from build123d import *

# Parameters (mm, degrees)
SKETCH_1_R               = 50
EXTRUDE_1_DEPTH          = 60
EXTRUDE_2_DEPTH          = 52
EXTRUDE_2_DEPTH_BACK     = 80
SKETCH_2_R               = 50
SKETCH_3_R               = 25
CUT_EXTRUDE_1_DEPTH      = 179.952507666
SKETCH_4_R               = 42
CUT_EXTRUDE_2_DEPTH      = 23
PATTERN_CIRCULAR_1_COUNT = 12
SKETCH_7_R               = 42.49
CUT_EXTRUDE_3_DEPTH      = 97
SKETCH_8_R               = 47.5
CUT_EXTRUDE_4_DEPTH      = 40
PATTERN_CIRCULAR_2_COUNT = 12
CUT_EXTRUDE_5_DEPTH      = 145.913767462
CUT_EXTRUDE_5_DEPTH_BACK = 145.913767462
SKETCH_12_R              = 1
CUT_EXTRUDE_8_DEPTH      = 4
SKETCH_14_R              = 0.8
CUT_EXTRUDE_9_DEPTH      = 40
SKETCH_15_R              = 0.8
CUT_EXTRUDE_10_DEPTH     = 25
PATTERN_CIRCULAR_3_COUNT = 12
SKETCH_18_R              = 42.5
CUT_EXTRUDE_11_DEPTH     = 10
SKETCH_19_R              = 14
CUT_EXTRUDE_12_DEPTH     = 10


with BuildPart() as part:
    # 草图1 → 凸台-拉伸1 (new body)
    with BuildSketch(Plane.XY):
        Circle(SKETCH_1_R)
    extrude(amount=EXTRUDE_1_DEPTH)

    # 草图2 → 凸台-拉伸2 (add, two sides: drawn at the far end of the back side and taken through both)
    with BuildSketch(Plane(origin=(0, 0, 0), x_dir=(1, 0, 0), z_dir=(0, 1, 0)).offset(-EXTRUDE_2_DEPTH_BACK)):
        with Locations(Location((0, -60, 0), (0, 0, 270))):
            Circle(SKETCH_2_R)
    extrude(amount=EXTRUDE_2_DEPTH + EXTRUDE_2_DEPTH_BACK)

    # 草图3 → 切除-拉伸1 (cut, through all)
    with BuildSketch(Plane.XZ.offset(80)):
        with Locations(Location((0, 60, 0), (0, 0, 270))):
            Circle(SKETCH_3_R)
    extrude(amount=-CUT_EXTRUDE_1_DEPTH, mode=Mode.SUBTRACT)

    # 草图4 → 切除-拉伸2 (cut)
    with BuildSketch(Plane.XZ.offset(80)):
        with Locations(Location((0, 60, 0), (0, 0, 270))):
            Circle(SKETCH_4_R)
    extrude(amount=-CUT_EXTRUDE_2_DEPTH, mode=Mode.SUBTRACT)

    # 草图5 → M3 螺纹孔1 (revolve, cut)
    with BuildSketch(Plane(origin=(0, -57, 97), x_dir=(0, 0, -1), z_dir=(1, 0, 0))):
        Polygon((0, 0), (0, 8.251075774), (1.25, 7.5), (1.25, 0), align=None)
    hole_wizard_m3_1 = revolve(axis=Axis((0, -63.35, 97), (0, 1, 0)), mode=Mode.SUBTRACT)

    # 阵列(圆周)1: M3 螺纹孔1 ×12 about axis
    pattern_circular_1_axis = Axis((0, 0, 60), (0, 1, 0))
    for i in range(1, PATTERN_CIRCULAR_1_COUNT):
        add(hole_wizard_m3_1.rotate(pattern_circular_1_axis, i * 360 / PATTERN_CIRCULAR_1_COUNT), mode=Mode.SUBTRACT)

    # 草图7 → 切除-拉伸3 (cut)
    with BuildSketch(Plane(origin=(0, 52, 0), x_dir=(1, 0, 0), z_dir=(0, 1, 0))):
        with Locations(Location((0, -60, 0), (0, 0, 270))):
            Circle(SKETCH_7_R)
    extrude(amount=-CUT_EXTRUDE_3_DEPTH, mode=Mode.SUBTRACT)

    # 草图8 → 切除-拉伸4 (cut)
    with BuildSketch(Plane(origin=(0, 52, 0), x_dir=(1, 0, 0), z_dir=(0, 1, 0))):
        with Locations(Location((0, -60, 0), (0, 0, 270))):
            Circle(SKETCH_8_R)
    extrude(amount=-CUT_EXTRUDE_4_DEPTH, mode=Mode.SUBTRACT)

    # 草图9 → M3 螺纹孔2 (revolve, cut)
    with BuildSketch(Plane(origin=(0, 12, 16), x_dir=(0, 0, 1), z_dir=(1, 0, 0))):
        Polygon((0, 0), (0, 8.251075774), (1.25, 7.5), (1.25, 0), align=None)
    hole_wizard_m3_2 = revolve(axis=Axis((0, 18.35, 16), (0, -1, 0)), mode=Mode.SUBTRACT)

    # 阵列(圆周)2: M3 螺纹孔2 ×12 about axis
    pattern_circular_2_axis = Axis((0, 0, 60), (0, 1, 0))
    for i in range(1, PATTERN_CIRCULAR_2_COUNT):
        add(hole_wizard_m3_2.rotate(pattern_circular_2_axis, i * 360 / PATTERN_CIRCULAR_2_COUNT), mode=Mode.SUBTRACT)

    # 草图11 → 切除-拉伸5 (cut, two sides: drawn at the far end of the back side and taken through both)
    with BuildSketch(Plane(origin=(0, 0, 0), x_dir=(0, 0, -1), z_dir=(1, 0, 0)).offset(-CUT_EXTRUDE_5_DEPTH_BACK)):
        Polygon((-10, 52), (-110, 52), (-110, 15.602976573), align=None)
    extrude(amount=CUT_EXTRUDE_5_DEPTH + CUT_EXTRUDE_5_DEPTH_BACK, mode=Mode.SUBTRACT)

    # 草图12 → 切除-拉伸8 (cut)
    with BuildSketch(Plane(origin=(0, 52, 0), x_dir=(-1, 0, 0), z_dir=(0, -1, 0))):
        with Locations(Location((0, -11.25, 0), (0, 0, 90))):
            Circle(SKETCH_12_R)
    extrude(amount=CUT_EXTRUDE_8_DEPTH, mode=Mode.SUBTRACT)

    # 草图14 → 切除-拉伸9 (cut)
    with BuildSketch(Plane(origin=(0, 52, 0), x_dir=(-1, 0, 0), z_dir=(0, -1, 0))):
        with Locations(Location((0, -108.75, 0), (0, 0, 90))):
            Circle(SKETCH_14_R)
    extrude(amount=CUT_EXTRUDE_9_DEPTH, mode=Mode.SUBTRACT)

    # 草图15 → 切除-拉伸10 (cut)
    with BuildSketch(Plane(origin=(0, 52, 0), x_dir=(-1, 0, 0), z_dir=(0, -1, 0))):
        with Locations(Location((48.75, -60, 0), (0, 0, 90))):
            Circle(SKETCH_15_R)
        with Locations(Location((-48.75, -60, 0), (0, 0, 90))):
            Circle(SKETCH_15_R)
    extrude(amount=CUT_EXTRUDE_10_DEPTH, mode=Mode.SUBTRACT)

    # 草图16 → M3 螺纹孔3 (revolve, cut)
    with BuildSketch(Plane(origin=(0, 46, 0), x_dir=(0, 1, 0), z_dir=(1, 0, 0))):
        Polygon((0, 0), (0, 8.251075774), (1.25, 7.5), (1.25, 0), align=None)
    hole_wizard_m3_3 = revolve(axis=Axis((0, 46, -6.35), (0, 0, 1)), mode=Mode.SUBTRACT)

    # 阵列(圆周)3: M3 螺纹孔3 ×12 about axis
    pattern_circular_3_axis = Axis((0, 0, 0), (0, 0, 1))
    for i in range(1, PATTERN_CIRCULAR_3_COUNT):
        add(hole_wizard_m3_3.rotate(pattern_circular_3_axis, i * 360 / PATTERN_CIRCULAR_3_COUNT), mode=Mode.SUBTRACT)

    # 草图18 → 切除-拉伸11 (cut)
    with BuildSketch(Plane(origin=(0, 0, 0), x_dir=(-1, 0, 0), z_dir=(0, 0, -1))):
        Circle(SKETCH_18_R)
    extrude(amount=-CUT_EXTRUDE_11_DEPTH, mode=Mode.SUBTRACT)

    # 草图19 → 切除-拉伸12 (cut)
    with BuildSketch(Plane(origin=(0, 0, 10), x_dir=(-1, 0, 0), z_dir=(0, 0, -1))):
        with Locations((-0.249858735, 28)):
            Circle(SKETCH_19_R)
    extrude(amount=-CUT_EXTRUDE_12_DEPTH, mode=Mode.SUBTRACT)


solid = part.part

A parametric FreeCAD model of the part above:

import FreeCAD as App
import Part
import Sketcher
Q = App.Units.Quantity


def add_polygon(sketch, points):
    """Adds a closed chain of lines whose ends are joined by coincident constraints."""
    first, n = sketch.GeometryCount, len(points)
    for a, b in zip(points, points[1:] + points[:1]):
        sketch.addGeometry(Part.LineSegment(App.Vector(*a, 0), App.Vector(*b, 0)), False)
    for i in range(n):
        sketch.addConstraint(Sketcher.Constraint("Coincident", first + i, 2, first + (i + 1) % n, 1))

doc = App.newDocument("Part")
body = doc.addObject("PartDesign::Body", "Body")

sketch1 = doc.addObject("Sketcher::SketchObject", "Sketch")
body.addObject(sketch1)
sketch1.AttachmentSupport = (doc.XY_Plane, [""])
sketch1.MapMode = "FlatFace"
sketch1.addGeometry(Part.Circle(App.Vector(0, 0, 0), App.Vector(0, 0, 1), 50), False)
sketch1.addConstraint(Sketcher.Constraint("Coincident", 0, 3, -1, 1))
sketch1.addConstraint(Sketcher.Constraint("Diameter", 0, Q("100 mm")))
pad1 = doc.addObject("PartDesign::Pad", "Pad")
body.addObject(pad1)
pad1.Profile = sketch1
pad1.Length = 60

sketch2 = doc.addObject("Sketcher::SketchObject", "Sketch001")
body.addObject(sketch2)
sketch2.AttachmentSupport = (doc.XZ_Plane, [""])
sketch2.MapMode = "FlatFace"
sketch2.addGeometry(Part.Circle(App.Vector(0, 60, 0), App.Vector(0, 0, 1), 50), False)
sketch2.addConstraint(Sketcher.Constraint("PointOnObject", 0, 3, -2))
sketch2.addConstraint(Sketcher.Constraint("Diameter", 0, Q("100 mm")))
sketch2.addConstraint(Sketcher.Constraint("DistanceY", -1, 1, 0, 3, Q("60 mm")))
pad2 = doc.addObject("PartDesign::Pad", "Pad001")
body.addObject(pad2)
pad2.Profile = sketch2
pad2.Type = "TwoLengths"
pad2.Length = 52
pad2.Length2 = 80
pad2.Reversed = True

sketch3 = doc.addObject("Sketcher::SketchObject", "Sketch002")
body.addObject(sketch3)
sketch3.AttachmentSupport = (doc.XZ_Plane, [""])
sketch3.MapMode = "FlatFace"
sketch3.AttachmentOffset = App.Placement(App.Vector(0, 0, 80), App.Rotation())
sketch3.addGeometry(Part.Circle(App.Vector(0, 60, 0), App.Vector(0, 0, 1), 25), False)
sketch3.addConstraint(Sketcher.Constraint("PointOnObject", 0, 3, -2))
sketch3.addConstraint(Sketcher.Constraint("Diameter", 0, Q("50 mm")))
sketch3.addConstraint(Sketcher.Constraint("DistanceY", -1, 1, 0, 3, Q("60 mm")))
pocket1 = doc.addObject("PartDesign::Pocket", "Pocket")
body.addObject(pocket1)
pocket1.Profile = sketch3
pocket1.Type = "ThroughAll"

sketch4 = doc.addObject("Sketcher::SketchObject", "Sketch003")
body.addObject(sketch4)
sketch4.AttachmentSupport = (doc.XZ_Plane, [""])
sketch4.MapMode = "FlatFace"
sketch4.AttachmentOffset = App.Placement(App.Vector(0, 0, 80), App.Rotation())
sketch4.addGeometry(Part.Circle(App.Vector(0, 60, 0), App.Vector(0, 0, 1), 42), False)
sketch4.addConstraint(Sketcher.Constraint("PointOnObject", 0, 3, -2))
sketch4.addConstraint(Sketcher.Constraint("Diameter", 0, Q("84 mm")))
sketch4.addConstraint(Sketcher.Constraint("DistanceY", -1, 1, 0, 3, Q("60 mm")))
pocket2 = doc.addObject("PartDesign::Pocket", "Pocket001")
body.addObject(pocket2)
pocket2.Profile = sketch4
pocket2.Length = 23

sketch5 = doc.addObject("Sketcher::SketchObject", "Sketch004")
body.addObject(sketch5)
sketch5.AttachmentSupport = (doc.YZ_Plane, [""])
sketch5.MapMode = "FlatFace"
add_polygon(sketch5, [(-48.7, 97), (-57, 97), (-57, 95.8), (-49.5, 95.8)])
sketch5.addGeometry(Part.LineSegment(App.Vector(-57, 97, 0), App.Vector(-48.7, 97, 0)), True)
sketch5.addConstraint(Sketcher.Constraint("Horizontal", 0))
sketch5.addConstraint(Sketcher.Constraint("Vertical", 1))
sketch5.addConstraint(Sketcher.Constraint("Horizontal", 2))
sketch5.addConstraint(Sketcher.Constraint("Horizontal", 4))
sketch5.addConstraint(Sketcher.Constraint("Coincident", 4, 1, 0, 2))
sketch5.addConstraint(Sketcher.Constraint("Equal", 0, 4))
sketch5.addConstraint(Sketcher.Constraint("Angle", 3, Q("59 deg")))
sketch5.addConstraint(Sketcher.Constraint("DistanceX", 2, 1, 2, 2, Q("7.5 mm")))
sketch5.addConstraint(Sketcher.Constraint("DistanceX", 0, 2, -1, 1, Q("57 mm")))
sketch5.addConstraint(Sketcher.Constraint("DistanceY", -1, 1, 0, 2, Q("97 mm")))
sketch5.addConstraint(Sketcher.Constraint("DistanceY", 1, 2, 1, 1, Q("1.25 mm")))
groove = doc.addObject("PartDesign::Groove", "Groove")
body.addObject(groove)
groove.Profile = sketch5
groove.ReferenceAxis = (sketch5, ["Axis0"])
groove.Angle = 360
doc.recompute()

datumline = doc.addObject("PartDesign::Line", "DatumLine")
body.addObject(datumline)
datumline.Placement = App.Placement(App.Vector(0, 0, 60), App.Rotation(App.Vector(0, 0, 1), App.Vector(0, 1, 0)))
polarpattern = doc.addObject("PartDesign::PolarPattern", "PolarPattern")
body.addObject(polarpattern)
polarpattern.Originals = [groove]
polarpattern.Axis = (datumline, [""])
polarpattern.Angle = 360
polarpattern.Occurrences = 12
body.Tip = polarpattern

sketch6 = doc.addObject("Sketcher::SketchObject", "Sketch005")
body.addObject(sketch6)
sketch6.AttachmentSupport = (doc.XZ_Plane, [""])
sketch6.MapMode = "FlatFace"
sketch6.AttachmentOffset = App.Placement(App.Vector(0, 0, -52), App.Rotation())
sketch6.addGeometry(Part.Circle(App.Vector(0, 60, 0), App.Vector(0, 0, 1), 42), False)
sketch6.addConstraint(Sketcher.Constraint("PointOnObject", 0, 3, -2))
sketch6.addConstraint(Sketcher.Constraint("Diameter", 0, Q("84.98 mm")))
sketch6.addConstraint(Sketcher.Constraint("DistanceY", -1, 1, 0, 3, Q("60 mm")))
pocket3 = doc.addObject("PartDesign::Pocket", "Pocket002")
body.addObject(pocket3)
pocket3.Profile = sketch6
pocket3.Length = 97
pocket3.Reversed = True

sketch7 = doc.addObject("Sketcher::SketchObject", "Sketch006")
body.addObject(sketch7)
sketch7.AttachmentSupport = (doc.XZ_Plane, [""])
sketch7.MapMode = "FlatFace"
sketch7.AttachmentOffset = App.Placement(App.Vector(0, 0, -52), App.Rotation())
sketch7.addGeometry(Part.Circle(App.Vector(0, 60, 0), App.Vector(0, 0, 1), 48), False)
sketch7.addConstraint(Sketcher.Constraint("PointOnObject", 0, 3, -2))
sketch7.addConstraint(Sketcher.Constraint("Diameter", 0, Q("95 mm")))
sketch7.addConstraint(Sketcher.Constraint("DistanceY", -1, 1, 0, 3, Q("60 mm")))
pocket4 = doc.addObject("PartDesign::Pocket", "Pocket003")
body.addObject(pocket4)
pocket4.Profile = sketch7
pocket4.Length = 40
pocket4.Reversed = True

sketch8 = doc.addObject("Sketcher::SketchObject", "Sketch007")
body.addObject(sketch8)
sketch8.AttachmentSupport = (doc.YZ_Plane, [""])
sketch8.MapMode = "FlatFace"
add_polygon(sketch8, [(3.7, 16), (12, 16), (12, 17.2), (4.5, 17.2)])
sketch8.addGeometry(Part.LineSegment(App.Vector(12, 16, 0), App.Vector(3.7, 16, 0)), True)
sketch8.addConstraint(Sketcher.Constraint("Horizontal", 0))
sketch8.addConstraint(Sketcher.Constraint("Vertical", 1))
sketch8.addConstraint(Sketcher.Constraint("Horizontal", 2))
sketch8.addConstraint(Sketcher.Constraint("Horizontal", 4))
sketch8.addConstraint(Sketcher.Constraint("Coincident", 4, 1, 0, 2))
sketch8.addConstraint(Sketcher.Constraint("Equal", 0, 4))
sketch8.addConstraint(Sketcher.Constraint("Angle", 3, Q("-121 deg")))
sketch8.addConstraint(Sketcher.Constraint("DistanceX", 2, 2, 2, 1, Q("7.5 mm")))
sketch8.addConstraint(Sketcher.Constraint("DistanceX", -1, 1, 0, 2, Q("12 mm")))
sketch8.addConstraint(Sketcher.Constraint("DistanceY", -1, 1, 0, 2, Q("16 mm")))
sketch8.addConstraint(Sketcher.Constraint("DistanceY", 1, 1, 1, 2, Q("1.25 mm")))
groove2 = doc.addObject("PartDesign::Groove", "Groove001")
body.addObject(groove2)
groove2.Profile = sketch8
groove2.ReferenceAxis = (sketch8, ["Axis0"])
groove2.Angle = 360
doc.recompute()

datumline2 = doc.addObject("PartDesign::Line", "DatumLine001")
body.addObject(datumline2)
datumline2.Placement = App.Placement(App.Vector(0, 0, 60), App.Rotation(App.Vector(0, 0, 1), App.Vector(0, 1, 0)))
polarpattern2 = doc.addObject("PartDesign::PolarPattern", "PolarPattern001")
body.addObject(polarpattern2)
polarpattern2.Originals = [groove2]
polarpattern2.Axis = (datumline2, [""])
polarpattern2.Angle = 360
polarpattern2.Occurrences = 12
body.Tip = polarpattern2

sketch9 = doc.addObject("Sketcher::SketchObject", "Sketch008")
body.addObject(sketch9)
sketch9.AttachmentSupport = (doc.YZ_Plane, [""])
sketch9.MapMode = "FlatFace"
add_polygon(sketch9, [(52, 10), (52, 110), (15.602977, 110)])
sketch9.addConstraint(Sketcher.Constraint("Vertical", 0))
sketch9.addConstraint(Sketcher.Constraint("Horizontal", 1))
sketch9.addConstraint(Sketcher.Constraint("DistanceY", 0, 1, 0, 2, Q("100 mm")))
sketch9.addConstraint(Sketcher.Constraint("Angle", 2, Q("-70 deg")))
sketch9.addConstraint(Sketcher.Constraint("DistanceX", -1, 1, 0, 2, Q("52 mm")))
sketch9.addConstraint(Sketcher.Constraint("DistanceY", -1, 1, 0, 2, Q("110 mm")))
pocket5 = doc.addObject("PartDesign::Pocket", "Pocket004")
body.addObject(pocket5)
pocket5.Profile = sketch9
pocket5.Type = "ThroughAll"
pocket5.Midplane = True

sketch10 = doc.addObject("Sketcher::SketchObject", "Sketch009")
body.addObject(sketch10)
sketch10.AttachmentSupport = (doc.XZ_Plane, [""])
sketch10.MapMode = "FlatFace"
sketch10.AttachmentOffset = App.Placement(App.Vector(0, 0, -52), App.Rotation())
sketch10.addGeometry(Part.Circle(App.Vector(0, 11.2, 0), App.Vector(0, 0, 1), 1), False)
sketch10.addConstraint(Sketcher.Constraint("PointOnObject", 0, 3, -2))
sketch10.addConstraint(Sketcher.Constraint("Diameter", 0, Q("2 mm")))
sketch10.addConstraint(Sketcher.Constraint("DistanceY", -1, 1, 0, 3, Q("11.25 mm")))
pocket6 = doc.addObject("PartDesign::Pocket", "Pocket005")
body.addObject(pocket6)
pocket6.Profile = sketch10
pocket6.Length = 4
pocket6.Reversed = True

sketch11 = doc.addObject("Sketcher::SketchObject", "Sketch010")
body.addObject(sketch11)
sketch11.AttachmentSupport = (doc.XZ_Plane, [""])
sketch11.MapMode = "FlatFace"
sketch11.AttachmentOffset = App.Placement(App.Vector(0, 0, -52), App.Rotation())
sketch11.addGeometry(Part.Circle(App.Vector(0, 108.8, 0), App.Vector(0, 0, 1), 0.8), False)
sketch11.addConstraint(Sketcher.Constraint("PointOnObject", 0, 3, -2))
sketch11.addConstraint(Sketcher.Constraint("Diameter", 0, Q("1.6 mm")))
sketch11.addConstraint(Sketcher.Constraint("DistanceY", -1, 1, 0, 3, Q("108.75 mm")))
pocket7 = doc.addObject("PartDesign::Pocket", "Pocket006")
body.addObject(pocket7)
pocket7.Profile = sketch11
pocket7.Length = 40
pocket7.Reversed = True

sketch12 = doc.addObject("Sketcher::SketchObject", "Sketch011")
body.addObject(sketch12)
sketch12.AttachmentSupport = (doc.XZ_Plane, [""])
sketch12.MapMode = "FlatFace"
sketch12.AttachmentOffset = App.Placement(App.Vector(0, 0, -52), App.Rotation())
sketch12.addGeometry(Part.Circle(App.Vector(-48.8, 60, 0), App.Vector(0, 0, 1), 0.8), False)
sketch12.addGeometry(Part.Circle(App.Vector(48.8, 60, 0), App.Vector(0, 0, 1), 0.8), False)
sketch12.addConstraint(Sketcher.Constraint("Equal", 0, 1))
sketch12.addConstraint(Sketcher.Constraint("Symmetric", 0, 3, 1, 3, -2))
sketch12.addConstraint(Sketcher.Constraint("Diameter", 0, Q("1.6 mm")))
sketch12.addConstraint(Sketcher.Constraint("DistanceY", -1, 1, 0, 3, Q("60 mm")))
sketch12.addConstraint(Sketcher.Constraint("DistanceX", 0, 3, 1, 3, Q("97.5 mm")))
pocket8 = doc.addObject("PartDesign::Pocket", "Pocket007")
body.addObject(pocket8)
pocket8.Profile = sketch12
pocket8.Length = 25
pocket8.Reversed = True

sketch13 = doc.addObject("Sketcher::SketchObject", "Sketch012")
body.addObject(sketch13)
sketch13.AttachmentSupport = (doc.YZ_Plane, [""])
sketch13.MapMode = "FlatFace"
add_polygon(sketch13, [(46, 8.3), (46, 0), (47.2, 0), (47.2, 7.5)])
sketch13.addGeometry(Part.LineSegment(App.Vector(46, 0, 0), App.Vector(46, 8.3, 0)), True)
sketch13.addConstraint(Sketcher.Constraint("Vertical", 0))
sketch13.addConstraint(Sketcher.Constraint("Horizontal", 1))
sketch13.addConstraint(Sketcher.Constraint("Vertical", 2))
sketch13.addConstraint(Sketcher.Constraint("Vertical", 4))
sketch13.addConstraint(Sketcher.Constraint("Coincident", 4, 1, 0, 2))
sketch13.addConstraint(Sketcher.Constraint("PointOnObject", 0, 2, -1))
sketch13.addConstraint(Sketcher.Constraint("Equal", 0, 4))
sketch13.addConstraint(Sketcher.Constraint("Angle", 3, Q("149 deg")))
sketch13.addConstraint(Sketcher.Constraint("DistanceY", 2, 1, 2, 2, Q("7.5 mm")))
sketch13.addConstraint(Sketcher.Constraint("DistanceX", -1, 1, 0, 2, Q("46 mm")))
sketch13.addConstraint(Sketcher.Constraint("DistanceX", 1, 1, 1, 2, Q("1.25 mm")))
groove3 = doc.addObject("PartDesign::Groove", "Groove002")
body.addObject(groove3)
groove3.Profile = sketch13
groove3.ReferenceAxis = (sketch13, ["Axis0"])
groove3.Angle = 360
doc.recompute()

polarpattern3 = doc.addObject("PartDesign::PolarPattern", "PolarPattern002")
body.addObject(polarpattern3)
polarpattern3.Originals = [groove3]
polarpattern3.Axis = (doc.Z_Axis, [""])
polarpattern3.Angle = 360
polarpattern3.Occurrences = 12
body.Tip = polarpattern3

sketch14 = doc.addObject("Sketcher::SketchObject", "Sketch013")
body.addObject(sketch14)
sketch14.AttachmentSupport = (doc.XY_Plane, [""])
sketch14.MapMode = "FlatFace"
sketch14.addGeometry(Part.Circle(App.Vector(0, 0, 0), App.Vector(0, 0, 1), 42), False)
sketch14.addConstraint(Sketcher.Constraint("Coincident", 0, 3, -1, 1))
sketch14.addConstraint(Sketcher.Constraint("Diameter", 0, Q("85 mm")))
pocket9 = doc.addObject("PartDesign::Pocket", "Pocket008")
body.addObject(pocket9)
pocket9.Profile = sketch14
pocket9.Length = 10
pocket9.Reversed = True

sketch15 = doc.addObject("Sketcher::SketchObject", "Sketch014")
body.addObject(sketch15)
sketch15.AttachmentSupport = (doc.XY_Plane, [""])
sketch15.MapMode = "FlatFace"
sketch15.AttachmentOffset = App.Placement(App.Vector(0, 0, 10), App.Rotation())
sketch15.addGeometry(Part.Circle(App.Vector(0, 28, 0), App.Vector(0, 0, 1), 14), False)
sketch15.addConstraint(Sketcher.Constraint("Diameter", 0, Q("28 mm")))
sketch15.addConstraint(Sketcher.Constraint("DistanceY", -1, 1, 0, 3, Q("28 mm")))
sketch15.addConstraint(Sketcher.Constraint("DistanceX", -1, 1, 0, 3, Q("0.249859 mm")))
pocket10 = doc.addObject("PartDesign::Pocket", "Pocket009")
body.addObject(pocket10)
pocket10.Profile = sketch15
pocket10.Length = 10
pocket10.Reversed = True

doc.recompute()
